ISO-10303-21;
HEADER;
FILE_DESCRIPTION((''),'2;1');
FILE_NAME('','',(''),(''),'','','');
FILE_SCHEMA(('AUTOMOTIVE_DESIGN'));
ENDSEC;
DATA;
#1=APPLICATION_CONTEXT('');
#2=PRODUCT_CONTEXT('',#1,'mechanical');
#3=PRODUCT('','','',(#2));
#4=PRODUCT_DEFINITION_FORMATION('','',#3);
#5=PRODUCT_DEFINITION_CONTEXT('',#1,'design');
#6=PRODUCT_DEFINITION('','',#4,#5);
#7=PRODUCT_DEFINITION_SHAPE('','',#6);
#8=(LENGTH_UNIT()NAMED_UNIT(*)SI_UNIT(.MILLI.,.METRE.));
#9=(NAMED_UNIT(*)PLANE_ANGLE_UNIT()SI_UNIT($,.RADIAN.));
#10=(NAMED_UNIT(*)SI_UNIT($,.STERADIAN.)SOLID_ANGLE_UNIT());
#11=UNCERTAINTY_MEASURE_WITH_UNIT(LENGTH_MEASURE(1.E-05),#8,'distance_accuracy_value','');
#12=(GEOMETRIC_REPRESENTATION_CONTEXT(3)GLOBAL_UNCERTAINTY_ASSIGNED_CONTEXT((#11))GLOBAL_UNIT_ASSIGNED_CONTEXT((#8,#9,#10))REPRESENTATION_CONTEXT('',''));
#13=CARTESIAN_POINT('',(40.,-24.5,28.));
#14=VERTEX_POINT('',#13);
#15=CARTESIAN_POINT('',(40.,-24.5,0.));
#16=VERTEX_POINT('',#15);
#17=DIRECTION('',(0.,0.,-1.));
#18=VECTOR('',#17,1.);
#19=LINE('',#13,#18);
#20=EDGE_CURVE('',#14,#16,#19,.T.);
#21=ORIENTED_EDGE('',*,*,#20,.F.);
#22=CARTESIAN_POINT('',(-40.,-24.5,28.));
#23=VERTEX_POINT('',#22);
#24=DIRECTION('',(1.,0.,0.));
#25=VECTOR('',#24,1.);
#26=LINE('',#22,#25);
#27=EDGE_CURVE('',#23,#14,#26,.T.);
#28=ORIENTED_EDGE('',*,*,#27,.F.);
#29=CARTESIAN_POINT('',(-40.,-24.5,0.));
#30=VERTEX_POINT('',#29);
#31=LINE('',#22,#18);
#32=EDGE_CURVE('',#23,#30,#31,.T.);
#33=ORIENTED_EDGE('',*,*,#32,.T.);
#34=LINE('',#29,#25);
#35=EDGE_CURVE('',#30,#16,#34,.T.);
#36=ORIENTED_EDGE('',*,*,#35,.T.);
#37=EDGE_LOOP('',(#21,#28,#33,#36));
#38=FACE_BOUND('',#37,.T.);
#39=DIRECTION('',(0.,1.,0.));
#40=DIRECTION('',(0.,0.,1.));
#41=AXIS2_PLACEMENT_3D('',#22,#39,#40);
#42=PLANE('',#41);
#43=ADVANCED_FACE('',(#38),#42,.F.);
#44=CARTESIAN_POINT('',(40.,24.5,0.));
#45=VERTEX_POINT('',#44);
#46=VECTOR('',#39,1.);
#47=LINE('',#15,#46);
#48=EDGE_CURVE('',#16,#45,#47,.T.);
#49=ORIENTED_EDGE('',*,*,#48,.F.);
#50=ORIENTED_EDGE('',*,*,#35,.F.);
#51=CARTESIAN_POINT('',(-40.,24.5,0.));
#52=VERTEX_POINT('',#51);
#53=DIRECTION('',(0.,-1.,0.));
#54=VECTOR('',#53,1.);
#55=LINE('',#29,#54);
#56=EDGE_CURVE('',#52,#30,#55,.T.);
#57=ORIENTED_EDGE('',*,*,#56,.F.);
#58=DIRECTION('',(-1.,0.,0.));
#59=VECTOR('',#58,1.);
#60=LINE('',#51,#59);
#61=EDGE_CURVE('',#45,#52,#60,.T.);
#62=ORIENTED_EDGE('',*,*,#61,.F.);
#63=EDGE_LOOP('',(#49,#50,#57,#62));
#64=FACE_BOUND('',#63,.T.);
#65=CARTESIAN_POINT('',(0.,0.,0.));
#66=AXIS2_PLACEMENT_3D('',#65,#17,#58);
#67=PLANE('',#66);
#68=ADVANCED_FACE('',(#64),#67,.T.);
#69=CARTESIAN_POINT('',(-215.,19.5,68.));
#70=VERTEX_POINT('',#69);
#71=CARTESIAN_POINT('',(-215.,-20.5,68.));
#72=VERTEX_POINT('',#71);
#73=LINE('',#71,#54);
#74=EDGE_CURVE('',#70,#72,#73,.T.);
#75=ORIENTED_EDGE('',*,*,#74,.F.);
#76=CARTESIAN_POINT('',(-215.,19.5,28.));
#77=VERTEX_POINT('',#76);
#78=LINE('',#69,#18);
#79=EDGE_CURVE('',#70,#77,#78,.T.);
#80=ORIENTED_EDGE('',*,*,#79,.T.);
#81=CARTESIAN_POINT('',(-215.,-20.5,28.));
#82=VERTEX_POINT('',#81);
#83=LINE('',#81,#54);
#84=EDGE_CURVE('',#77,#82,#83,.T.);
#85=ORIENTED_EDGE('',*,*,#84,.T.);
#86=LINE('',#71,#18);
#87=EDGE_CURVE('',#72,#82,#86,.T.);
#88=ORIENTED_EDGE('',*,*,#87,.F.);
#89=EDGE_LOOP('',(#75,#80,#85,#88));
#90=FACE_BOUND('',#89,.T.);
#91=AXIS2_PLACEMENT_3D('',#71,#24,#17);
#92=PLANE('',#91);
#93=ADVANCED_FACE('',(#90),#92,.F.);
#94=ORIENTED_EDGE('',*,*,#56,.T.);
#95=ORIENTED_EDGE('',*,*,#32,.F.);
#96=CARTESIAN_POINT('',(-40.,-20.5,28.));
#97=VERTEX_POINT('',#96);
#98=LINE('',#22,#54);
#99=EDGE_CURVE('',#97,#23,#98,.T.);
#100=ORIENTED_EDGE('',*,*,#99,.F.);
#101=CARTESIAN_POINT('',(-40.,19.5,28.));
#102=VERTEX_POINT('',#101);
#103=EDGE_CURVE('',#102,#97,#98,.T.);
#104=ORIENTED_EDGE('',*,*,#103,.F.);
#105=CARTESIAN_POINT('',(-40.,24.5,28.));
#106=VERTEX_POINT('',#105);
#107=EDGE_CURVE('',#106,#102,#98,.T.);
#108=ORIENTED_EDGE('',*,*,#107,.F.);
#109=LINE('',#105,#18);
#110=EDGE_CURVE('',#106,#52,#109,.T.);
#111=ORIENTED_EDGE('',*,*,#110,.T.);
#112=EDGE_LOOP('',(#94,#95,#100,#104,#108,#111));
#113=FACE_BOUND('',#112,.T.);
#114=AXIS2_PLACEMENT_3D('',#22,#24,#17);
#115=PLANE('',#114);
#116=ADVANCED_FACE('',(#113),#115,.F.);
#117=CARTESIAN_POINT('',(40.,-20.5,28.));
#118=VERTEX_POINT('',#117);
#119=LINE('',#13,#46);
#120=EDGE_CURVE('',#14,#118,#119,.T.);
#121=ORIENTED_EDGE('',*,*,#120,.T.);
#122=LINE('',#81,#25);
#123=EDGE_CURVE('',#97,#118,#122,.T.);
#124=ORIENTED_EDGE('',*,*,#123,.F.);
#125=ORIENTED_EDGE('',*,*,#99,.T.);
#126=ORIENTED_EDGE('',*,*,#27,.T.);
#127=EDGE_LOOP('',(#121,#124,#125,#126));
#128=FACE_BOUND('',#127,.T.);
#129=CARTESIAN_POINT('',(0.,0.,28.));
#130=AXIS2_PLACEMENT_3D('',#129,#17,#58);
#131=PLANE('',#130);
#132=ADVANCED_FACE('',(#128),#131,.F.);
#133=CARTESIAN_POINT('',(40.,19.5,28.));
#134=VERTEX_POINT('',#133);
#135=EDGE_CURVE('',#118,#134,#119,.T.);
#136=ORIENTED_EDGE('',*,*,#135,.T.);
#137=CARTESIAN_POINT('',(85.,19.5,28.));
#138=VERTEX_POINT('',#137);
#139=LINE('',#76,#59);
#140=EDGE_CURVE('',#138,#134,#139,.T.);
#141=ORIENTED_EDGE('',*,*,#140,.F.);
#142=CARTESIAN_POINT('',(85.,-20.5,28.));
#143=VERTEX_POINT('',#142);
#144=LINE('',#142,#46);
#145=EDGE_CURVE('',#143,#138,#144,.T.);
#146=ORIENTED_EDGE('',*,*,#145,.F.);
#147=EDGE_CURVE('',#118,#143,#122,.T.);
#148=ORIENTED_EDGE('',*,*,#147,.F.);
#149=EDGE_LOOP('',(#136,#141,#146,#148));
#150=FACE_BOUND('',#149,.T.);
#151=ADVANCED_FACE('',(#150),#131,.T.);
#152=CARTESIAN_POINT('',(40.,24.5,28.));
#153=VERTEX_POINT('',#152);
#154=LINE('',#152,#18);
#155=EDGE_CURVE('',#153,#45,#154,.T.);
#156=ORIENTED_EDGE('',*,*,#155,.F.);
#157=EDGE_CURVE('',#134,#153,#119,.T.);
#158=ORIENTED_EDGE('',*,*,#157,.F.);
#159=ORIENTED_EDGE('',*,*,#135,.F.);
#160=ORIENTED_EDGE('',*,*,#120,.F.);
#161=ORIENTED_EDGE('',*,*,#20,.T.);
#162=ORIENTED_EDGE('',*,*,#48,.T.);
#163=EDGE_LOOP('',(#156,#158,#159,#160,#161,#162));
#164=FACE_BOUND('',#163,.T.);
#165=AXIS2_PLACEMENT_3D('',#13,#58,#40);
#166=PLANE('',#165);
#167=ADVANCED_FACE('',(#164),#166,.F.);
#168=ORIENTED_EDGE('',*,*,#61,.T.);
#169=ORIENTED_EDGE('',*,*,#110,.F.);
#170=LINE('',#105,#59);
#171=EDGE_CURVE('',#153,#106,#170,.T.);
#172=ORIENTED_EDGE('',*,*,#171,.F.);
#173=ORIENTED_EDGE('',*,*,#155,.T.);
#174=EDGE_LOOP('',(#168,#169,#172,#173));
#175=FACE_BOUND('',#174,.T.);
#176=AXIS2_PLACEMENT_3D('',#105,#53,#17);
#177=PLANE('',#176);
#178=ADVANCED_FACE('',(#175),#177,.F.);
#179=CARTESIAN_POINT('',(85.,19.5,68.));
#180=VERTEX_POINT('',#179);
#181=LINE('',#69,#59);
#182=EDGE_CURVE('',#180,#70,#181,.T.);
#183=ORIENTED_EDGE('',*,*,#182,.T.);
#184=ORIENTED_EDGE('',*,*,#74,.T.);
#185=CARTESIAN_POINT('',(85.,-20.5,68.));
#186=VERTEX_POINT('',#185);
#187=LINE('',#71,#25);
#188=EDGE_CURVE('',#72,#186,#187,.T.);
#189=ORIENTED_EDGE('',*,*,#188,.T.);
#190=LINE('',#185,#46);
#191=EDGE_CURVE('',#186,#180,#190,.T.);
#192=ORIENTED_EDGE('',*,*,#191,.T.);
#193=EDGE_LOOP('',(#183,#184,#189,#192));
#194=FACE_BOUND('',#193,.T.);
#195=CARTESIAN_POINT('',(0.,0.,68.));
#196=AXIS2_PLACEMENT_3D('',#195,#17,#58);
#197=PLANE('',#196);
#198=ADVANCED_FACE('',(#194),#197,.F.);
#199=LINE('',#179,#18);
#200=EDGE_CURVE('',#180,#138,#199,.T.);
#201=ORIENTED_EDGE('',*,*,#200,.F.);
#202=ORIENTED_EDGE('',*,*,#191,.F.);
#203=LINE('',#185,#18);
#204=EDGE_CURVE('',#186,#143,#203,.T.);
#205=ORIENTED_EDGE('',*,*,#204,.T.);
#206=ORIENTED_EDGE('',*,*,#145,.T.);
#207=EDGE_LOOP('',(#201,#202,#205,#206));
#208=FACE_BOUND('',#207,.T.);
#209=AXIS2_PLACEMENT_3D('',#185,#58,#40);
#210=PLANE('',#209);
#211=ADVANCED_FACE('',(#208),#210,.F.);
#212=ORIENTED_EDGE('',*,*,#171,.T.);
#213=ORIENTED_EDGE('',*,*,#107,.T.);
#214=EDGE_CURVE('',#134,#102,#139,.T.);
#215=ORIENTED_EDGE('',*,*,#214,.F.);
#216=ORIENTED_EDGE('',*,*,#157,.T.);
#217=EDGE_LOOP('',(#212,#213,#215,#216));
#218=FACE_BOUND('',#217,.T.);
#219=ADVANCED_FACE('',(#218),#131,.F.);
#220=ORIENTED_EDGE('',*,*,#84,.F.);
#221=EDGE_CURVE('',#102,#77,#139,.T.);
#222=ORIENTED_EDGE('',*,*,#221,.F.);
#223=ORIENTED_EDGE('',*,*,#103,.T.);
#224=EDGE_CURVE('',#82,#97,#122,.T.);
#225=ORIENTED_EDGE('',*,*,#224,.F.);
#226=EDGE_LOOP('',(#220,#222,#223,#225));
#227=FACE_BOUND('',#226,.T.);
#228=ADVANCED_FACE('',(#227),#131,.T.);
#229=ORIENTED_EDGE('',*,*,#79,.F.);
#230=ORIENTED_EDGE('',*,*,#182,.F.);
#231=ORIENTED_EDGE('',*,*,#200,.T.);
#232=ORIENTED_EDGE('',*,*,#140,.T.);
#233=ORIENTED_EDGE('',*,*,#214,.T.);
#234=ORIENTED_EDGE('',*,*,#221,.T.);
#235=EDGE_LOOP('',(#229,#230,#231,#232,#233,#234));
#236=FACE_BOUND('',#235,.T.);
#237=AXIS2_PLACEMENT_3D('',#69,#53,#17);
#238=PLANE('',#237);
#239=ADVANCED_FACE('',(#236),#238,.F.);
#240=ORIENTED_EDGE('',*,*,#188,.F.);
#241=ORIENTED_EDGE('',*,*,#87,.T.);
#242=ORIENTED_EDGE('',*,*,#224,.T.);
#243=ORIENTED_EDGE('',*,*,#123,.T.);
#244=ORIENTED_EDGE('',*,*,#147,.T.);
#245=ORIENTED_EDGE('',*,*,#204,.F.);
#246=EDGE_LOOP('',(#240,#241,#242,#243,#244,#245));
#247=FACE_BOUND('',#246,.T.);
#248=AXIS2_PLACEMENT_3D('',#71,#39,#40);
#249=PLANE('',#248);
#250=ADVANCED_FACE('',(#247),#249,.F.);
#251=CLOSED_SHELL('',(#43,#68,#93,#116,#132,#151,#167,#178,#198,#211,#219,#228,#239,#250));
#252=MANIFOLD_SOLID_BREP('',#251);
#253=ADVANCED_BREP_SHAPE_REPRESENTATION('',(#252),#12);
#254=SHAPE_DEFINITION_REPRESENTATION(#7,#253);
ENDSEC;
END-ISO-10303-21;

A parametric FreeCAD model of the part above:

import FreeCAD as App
import Part
import Sketcher
Q = App.Units.Quantity


def add_polygon(sketch, points):
    """Adds a closed chain of lines whose ends are joined by coincident constraints."""
    first, n = sketch.GeometryCount, len(points)
    for a, b in zip(points, points[1:] + points[:1]):
        sketch.addGeometry(Part.LineSegment(App.Vector(*a, 0), App.Vector(*b, 0)), False)
    for i in range(n):
        sketch.addConstraint(Sketcher.Constraint("Coincident", first + i, 2, first + (i + 1) % n, 1))

doc = App.newDocument("Part")
body = doc.addObject("PartDesign::Body", "Body")

# Sketch on XY plane
sketch1 = body.newObject("Sketcher::SketchObject", "Sketch")
sketch1.AttachmentSupport = (doc.getObject("XY_Plane"), [""])
sketch1.MapMode = "FlatFace"
add_polygon(sketch1, [(-40, 24.5), (-40, -24.5), (40, -24.5), (40, 24.5)])  # lines 0-3
sketch1.addConstraint([
    Sketcher.Constraint("Vertical", 0),
    Sketcher.Constraint("Horizontal", 1),
    Sketcher.Constraint("Vertical", 2),
    Sketcher.Constraint("Horizontal", 3),
    Sketcher.Constraint("Symmetric", 0, 2, 2, 2, -1, 1),
    Sketcher.Constraint("DistanceX", 1, 1, 1, 2, Q("80 mm")),
    Sketcher.Constraint("DistanceY", 0, 2, 0, 1, Q("49 mm")),
])
pad1 = body.newObject("PartDesign::Pad", "Pad")
pad1.Profile = sketch1
pad1.Length = 28

# Sketch on XY plane
sketch2 = body.newObject("Sketcher::SketchObject", "Sketch001")
sketch2.AttachmentSupport = (doc.getObject("XY_Plane"), [""])
sketch2.MapMode = "FlatFace"
sketch2.AttachmentOffset = App.Placement(App.Vector(0, 0, 28), App.Rotation())
add_polygon(sketch2, [(-215, 19.5), (-215, -20.5), (85, -20.5), (85, 19.5)])  # lines 0-3
sketch2.addConstraint([
    Sketcher.Constraint("Vertical", 0),
    Sketcher.Constraint("Horizontal", 1),
    Sketcher.Constraint("Vertical", 2),
    Sketcher.Constraint("Horizontal", 3),
    Sketcher.Constraint("DistanceX", 1, 1, 1, 2, Q("300 mm")),
    Sketcher.Constraint("DistanceY", 0, 2, 0, 1, Q("40 mm")),
    Sketcher.Constraint("DistanceX", 0, 2, -1, 1, Q("215 mm")),
    Sketcher.Constraint("DistanceY", 0, 2, -1, 1, Q("20.5 mm")),
])
pad2 = body.newObject("PartDesign::Pad", "Pad001")
pad2.Profile = sketch2
pad2.Length = 40

doc.recompute()
